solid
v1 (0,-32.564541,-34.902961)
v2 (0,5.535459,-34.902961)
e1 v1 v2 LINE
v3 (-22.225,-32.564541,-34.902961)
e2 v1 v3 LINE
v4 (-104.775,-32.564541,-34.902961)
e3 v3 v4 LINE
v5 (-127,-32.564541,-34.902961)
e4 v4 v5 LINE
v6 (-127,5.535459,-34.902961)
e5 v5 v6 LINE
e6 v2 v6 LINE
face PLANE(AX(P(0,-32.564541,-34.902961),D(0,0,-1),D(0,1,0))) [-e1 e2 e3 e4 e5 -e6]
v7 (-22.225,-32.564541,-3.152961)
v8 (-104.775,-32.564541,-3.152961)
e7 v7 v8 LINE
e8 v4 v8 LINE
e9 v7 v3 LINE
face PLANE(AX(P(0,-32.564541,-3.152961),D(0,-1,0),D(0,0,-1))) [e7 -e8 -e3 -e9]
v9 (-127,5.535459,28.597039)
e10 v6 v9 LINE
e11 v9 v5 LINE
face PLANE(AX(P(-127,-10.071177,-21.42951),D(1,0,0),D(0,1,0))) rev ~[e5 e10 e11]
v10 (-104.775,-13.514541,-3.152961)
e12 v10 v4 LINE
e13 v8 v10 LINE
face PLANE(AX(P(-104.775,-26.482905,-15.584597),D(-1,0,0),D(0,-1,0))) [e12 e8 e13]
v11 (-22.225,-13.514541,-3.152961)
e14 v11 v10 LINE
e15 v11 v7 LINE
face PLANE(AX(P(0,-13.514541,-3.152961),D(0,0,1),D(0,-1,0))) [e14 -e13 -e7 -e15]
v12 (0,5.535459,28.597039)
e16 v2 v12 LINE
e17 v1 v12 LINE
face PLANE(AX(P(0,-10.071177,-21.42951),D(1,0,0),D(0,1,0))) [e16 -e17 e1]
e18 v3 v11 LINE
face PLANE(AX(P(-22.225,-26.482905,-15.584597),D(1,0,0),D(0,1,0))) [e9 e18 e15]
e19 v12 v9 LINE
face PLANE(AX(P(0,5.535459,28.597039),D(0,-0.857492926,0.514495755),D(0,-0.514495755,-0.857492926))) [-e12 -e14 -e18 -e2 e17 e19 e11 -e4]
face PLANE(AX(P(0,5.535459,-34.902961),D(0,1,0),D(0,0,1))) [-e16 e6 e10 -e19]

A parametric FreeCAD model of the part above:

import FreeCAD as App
import Part
import Sketcher
Q = App.Units.Quantity


def add_polygon(sketch, points):
    """Adds a closed chain of lines whose ends are joined by coincident constraints."""
    first, n = sketch.GeometryCount, len(points)
    for a, b in zip(points, points[1:] + points[:1]):
        sketch.addGeometry(Part.LineSegment(App.Vector(*a, 0), App.Vector(*b, 0)), False)
    for i in range(n):
        sketch.addConstraint(Sketcher.Constraint("Coincident", first + i, 2, first + (i + 1) % n, 1))

doc = App.newDocument("Part")
body = doc.addObject("PartDesign::Body", "Body")

# Sketch on YZ plane
sketch1 = body.newObject("Sketcher::SketchObject", "Sketch")
sketch1.AttachmentSupport = (doc.getObject("YZ_Plane"), [""])
sketch1.MapMode = "FlatFace"
add_polygon(sketch1, [(6, -35), (6, 29), (-14, -3), (-33, -3), (-33, -35)])  # lines 0-4
sketch1.addConstraint(Sketcher.Constraint("Vertical", 0))
sketch1.addConstraint(Sketcher.Constraint("Horizontal", 2))
sketch1.addConstraint(Sketcher.Constraint("Vertical", 3))
sketch1.addConstraint(Sketcher.Constraint("Horizontal", 4))
sketch1.addConstraint(Sketcher.Constraint("DistanceX", 4, 1, 4, 2, Q("1.5 in")))
sketch1.addConstraint(Sketcher.Constraint("DistanceY", 0, 1, 0, 2, Q("2.5 in")))
sketch1.addConstraint(Sketcher.Constraint("DistanceX", 2, 2, 2, 1, Q("0.75 in")))
sketch1.addConstraint(Sketcher.Constraint("DistanceY", 3, 2, 3, 1, Q("1.25 in")))
sketch1.addConstraint(Sketcher.Constraint("DistanceX", -1, 1, 0, 2, Q("5.535459 mm")))
sketch1.addConstraint(Sketcher.Constraint("DistanceY", -1, 1, 0, 2, Q("28.597039 mm")))
pad1 = body.newObject("PartDesign::Pad", "Pad")
pad1.Profile = sketch1
pad1.Length = Q("5 in")
pad1.Reversed = True

# Sketch on YZ plane
sketch2 = body.newObject("Sketcher::SketchObject", "Sketch001")
sketch2.AttachmentSupport = (doc.getObject("YZ_Plane"), [""])
sketch2.MapMode = "FlatFace"
sketch2.AttachmentOffset = App.Placement(App.Vector(0, 0, -5 * 25.4), App.Rotation())
add_polygon(sketch2, [(-33, -3), (-14, -3), (-33, -35)])  # lines 0-2
sketch2.addConstraint(Sketcher.Constraint("Horizontal", 0))
sketch2.addConstraint(Sketcher.Constraint("Vertical", 2))
sketch2.addConstraint(Sketcher.Constraint("DistanceX", 0, 1, 0, 2, Q("0.75 in")))
sketch2.addConstraint(Sketcher.Constraint("DistanceY", 2, 1, 2, 2, Q("1.25 in")))
sketch2.addConstraint(Sketcher.Constraint("DistanceX", 0, 2, -1, 1, Q("13.514541 mm")))
sketch2.addConstraint(Sketcher.Constraint("DistanceY", 0, 2, -1, 1, Q("3.152961 mm")))
pocket1 = body.newObject("PartDesign::Pocket", "Pocket")
pocket1.Profile = sketch2
pocket1.Length = Q("0.875 in")
pocket1.Reversed = True

# Sketch on YZ plane
sketch3 = body.newObject("Sketcher::SketchObject", "Sketch002")
sketch3.AttachmentSupport = (doc.getObject("YZ_Plane"), [""])
sketch3.MapMode = "FlatFace"
add_polygon(sketch3, [(-33, -35), (-14, -3), (-33, -3)])  # lines 0-2
sketch3.addConstraint(Sketcher.Constraint("Horizontal", 1))
sketch3.addConstraint(Sketcher.Constraint("Vertical", 2))
sketch3.addConstraint(Sketcher.Constraint("DistanceX", 1, 2, 1, 1, Q("0.75 in")))
sketch3.addConstraint(Sketcher.Constraint("DistanceY", 2, 2, 2, 1, Q("1.25 in")))
sketch3.addConstraint(Sketcher.Constraint("DistanceX", 0, 2, -1, 1, Q("13.514541 mm")))
sketch3.addConstraint(Sketcher.Constraint("DistanceY", 0, 2, -1, 1, Q("3.152961 mm")))
pocket2 = body.newObject("PartDesign::Pocket", "Pocket001")
pocket2.Profile = sketch3
pocket2.Length = Q("0.875 in")

doc.recompute()
